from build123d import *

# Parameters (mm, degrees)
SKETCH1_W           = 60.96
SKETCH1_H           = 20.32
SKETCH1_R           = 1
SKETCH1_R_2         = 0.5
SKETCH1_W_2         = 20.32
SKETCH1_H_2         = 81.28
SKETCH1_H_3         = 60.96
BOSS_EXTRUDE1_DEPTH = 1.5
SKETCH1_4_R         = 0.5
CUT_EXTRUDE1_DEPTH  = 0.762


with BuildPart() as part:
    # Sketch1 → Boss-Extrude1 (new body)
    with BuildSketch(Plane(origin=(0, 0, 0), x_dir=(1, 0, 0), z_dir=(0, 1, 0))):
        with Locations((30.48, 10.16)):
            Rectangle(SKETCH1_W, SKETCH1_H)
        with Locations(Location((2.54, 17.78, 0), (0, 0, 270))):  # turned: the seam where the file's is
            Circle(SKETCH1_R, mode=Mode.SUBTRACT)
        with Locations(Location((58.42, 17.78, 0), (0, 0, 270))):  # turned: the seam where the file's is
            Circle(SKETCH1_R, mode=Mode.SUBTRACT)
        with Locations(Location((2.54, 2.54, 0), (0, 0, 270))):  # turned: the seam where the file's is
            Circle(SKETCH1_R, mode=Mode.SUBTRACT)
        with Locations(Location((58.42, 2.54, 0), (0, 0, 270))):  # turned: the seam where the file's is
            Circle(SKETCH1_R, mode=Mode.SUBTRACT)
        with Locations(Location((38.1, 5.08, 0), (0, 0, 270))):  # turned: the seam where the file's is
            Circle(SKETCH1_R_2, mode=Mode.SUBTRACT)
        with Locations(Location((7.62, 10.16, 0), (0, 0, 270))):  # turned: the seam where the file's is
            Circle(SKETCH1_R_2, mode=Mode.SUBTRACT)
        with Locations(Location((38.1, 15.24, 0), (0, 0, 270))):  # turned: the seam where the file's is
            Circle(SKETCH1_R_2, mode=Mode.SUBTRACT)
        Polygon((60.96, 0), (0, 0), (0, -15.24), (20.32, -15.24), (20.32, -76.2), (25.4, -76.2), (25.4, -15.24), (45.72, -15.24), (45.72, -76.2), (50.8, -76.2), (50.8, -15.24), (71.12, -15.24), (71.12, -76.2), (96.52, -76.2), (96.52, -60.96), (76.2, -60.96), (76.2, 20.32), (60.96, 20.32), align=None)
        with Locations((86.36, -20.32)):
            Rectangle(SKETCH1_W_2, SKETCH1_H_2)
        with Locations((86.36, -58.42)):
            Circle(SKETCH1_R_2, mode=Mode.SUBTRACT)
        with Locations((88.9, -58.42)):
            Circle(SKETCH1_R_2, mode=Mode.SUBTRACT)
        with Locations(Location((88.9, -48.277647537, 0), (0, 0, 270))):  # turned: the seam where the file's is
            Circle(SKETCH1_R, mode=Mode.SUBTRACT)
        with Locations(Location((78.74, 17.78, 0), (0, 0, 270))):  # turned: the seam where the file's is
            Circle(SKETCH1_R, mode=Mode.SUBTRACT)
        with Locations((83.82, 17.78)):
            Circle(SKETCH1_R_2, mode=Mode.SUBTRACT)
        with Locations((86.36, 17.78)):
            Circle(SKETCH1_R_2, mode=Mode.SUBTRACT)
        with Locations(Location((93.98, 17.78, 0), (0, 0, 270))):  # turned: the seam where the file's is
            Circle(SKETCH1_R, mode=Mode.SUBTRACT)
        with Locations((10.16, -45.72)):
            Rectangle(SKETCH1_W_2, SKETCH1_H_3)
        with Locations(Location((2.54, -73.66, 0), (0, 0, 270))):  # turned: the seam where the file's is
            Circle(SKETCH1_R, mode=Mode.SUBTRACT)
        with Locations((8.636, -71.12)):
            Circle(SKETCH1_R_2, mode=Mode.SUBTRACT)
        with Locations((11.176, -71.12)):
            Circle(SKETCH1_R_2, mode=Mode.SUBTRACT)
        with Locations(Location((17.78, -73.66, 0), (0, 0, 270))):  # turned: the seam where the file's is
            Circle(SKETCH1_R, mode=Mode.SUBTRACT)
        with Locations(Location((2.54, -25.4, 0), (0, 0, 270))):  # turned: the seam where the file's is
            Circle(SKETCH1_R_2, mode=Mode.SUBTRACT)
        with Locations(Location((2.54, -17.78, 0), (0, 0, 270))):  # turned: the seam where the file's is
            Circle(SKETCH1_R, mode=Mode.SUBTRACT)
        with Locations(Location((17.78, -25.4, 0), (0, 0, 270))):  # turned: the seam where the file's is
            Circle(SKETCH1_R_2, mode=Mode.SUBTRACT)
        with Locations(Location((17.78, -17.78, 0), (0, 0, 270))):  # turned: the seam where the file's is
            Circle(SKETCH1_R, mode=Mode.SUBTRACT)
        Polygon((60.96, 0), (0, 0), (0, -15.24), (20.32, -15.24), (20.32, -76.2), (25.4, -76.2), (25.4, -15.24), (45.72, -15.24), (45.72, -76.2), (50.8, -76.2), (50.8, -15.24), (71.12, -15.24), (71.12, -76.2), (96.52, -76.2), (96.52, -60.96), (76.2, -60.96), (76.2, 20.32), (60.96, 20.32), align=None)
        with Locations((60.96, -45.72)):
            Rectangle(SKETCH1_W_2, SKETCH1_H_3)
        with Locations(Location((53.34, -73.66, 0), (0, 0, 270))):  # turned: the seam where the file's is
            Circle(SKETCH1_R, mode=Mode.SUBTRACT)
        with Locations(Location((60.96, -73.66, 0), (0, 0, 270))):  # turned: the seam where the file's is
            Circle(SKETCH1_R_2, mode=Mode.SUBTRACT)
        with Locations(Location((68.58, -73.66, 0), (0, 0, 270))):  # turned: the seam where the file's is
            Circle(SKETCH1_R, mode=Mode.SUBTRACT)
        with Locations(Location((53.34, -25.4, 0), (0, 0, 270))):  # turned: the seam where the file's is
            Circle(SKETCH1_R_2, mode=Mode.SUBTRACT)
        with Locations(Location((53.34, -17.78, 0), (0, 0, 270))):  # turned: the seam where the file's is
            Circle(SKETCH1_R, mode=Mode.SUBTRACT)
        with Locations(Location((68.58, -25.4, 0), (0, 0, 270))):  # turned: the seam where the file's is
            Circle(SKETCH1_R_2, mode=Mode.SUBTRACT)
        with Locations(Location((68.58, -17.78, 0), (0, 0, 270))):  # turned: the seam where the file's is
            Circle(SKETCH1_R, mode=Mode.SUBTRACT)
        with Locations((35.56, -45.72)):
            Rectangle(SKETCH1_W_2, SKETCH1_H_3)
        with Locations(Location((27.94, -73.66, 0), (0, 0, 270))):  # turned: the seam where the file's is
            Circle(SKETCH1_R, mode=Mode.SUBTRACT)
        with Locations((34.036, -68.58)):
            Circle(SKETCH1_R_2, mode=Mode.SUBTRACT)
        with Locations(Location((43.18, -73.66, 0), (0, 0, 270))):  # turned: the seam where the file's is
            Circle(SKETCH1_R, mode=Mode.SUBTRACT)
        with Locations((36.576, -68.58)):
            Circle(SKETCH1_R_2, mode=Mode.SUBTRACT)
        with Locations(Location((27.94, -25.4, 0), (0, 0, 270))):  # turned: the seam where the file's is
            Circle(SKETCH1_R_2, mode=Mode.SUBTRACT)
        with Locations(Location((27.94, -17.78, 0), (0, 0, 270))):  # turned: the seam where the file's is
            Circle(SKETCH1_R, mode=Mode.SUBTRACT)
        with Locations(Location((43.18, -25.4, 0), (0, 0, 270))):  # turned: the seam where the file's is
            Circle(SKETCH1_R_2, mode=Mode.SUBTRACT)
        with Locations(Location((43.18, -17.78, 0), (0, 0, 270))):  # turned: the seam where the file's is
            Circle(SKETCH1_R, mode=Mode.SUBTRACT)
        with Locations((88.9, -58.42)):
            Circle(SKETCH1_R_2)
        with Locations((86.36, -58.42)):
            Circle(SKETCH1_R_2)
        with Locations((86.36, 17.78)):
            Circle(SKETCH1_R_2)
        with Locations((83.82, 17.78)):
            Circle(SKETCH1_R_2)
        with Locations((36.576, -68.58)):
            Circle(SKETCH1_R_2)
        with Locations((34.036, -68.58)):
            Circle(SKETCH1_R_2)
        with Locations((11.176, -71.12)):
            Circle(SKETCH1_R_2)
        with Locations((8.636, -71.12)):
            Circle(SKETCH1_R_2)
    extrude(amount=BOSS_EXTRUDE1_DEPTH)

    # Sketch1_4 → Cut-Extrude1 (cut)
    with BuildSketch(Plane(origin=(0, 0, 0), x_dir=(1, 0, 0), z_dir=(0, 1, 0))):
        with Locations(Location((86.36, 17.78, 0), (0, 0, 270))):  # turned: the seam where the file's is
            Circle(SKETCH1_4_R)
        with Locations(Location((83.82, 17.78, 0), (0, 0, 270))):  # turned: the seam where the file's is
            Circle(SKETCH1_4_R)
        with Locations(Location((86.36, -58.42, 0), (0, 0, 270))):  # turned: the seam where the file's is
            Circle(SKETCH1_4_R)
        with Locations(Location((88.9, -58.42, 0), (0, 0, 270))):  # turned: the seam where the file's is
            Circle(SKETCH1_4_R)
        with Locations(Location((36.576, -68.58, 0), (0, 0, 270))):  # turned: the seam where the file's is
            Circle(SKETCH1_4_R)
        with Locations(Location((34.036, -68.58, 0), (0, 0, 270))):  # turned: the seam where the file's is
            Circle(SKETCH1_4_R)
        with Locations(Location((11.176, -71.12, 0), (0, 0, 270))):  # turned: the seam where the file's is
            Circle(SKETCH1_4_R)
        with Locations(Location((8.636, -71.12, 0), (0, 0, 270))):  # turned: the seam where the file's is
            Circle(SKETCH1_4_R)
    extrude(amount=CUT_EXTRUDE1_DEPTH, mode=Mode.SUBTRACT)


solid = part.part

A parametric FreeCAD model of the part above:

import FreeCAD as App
import Part
import Sketcher
from FreeCAD import Vector
Q = App.Units.Quantity

doc = App.newDocument("Part")
params = doc.addObject("Spreadsheet::Sheet", "Params")
for row, (alias, value) in enumerate([
    ("sketch1_diameter", "2 mm"),
    ("sketch1_diameter2", "1 mm"),
    ("sketch1_width", "96.52 mm"),
    ("pad1_length", "1.5 mm"),
    ("sketch2_diameter", "1 mm"),
    ("pocket1_length", "0.762 mm"),
], start=1):
    params.set(f"A{row}", alias)
    params.set(f"B{row}", "=" + value)
    params.setAlias(f"B{row}", alias)

body = doc.addObject("PartDesign::Body", "Body")

sketch1 = doc.addObject("Sketcher::SketchObject", "Sketch")
body.addObject(sketch1)
sketch1.AttachmentSupport = (doc.XZ_Plane, [""])
sketch1.MapMode = "FlatFace"
sketch1.addGeometry([
    Part.LineSegment(Vector(0, -20.3, 0), Vector(0, 76.2, 0)),
    Part.LineSegment(Vector(0, 76.2, 0), Vector(96.5, 76.2, 0)),
    Part.LineSegment(Vector(96.5, 76.2, 0), Vector(96.5, -20.3, 0)),
    Part.LineSegment(Vector(96.5, -20.3, 0), Vector(0, -20.3, 0)),
    Part.Circle(Vector(2.5, 73.7, 0), Vector(0, 0, 1), 1),
    Part.Circle(Vector(17.8, 73.7, 0), Vector(0, 0, 1), 1),
    Part.Circle(Vector(27.9, 73.7, 0), Vector(0, 0, 1), 1),
    Part.Circle(Vector(43.2, 73.7, 0), Vector(0, 0, 1), 1),
    Part.Circle(Vector(53.3, 73.7, 0), Vector(0, 0, 1), 1),
    Part.Circle(Vector(61, 73.7, 0), Vector(0, 0, 1), 0.5),
    Part.Circle(Vector(68.6, 73.7, 0), Vector(0, 0, 1), 1),
    Part.Circle(Vector(88.9, 48.3, 0), Vector(0, 0, 1), 1),
    Part.Circle(Vector(2.5, 25.4, 0), Vector(0, 0, 1), 0.5),
    Part.Circle(Vector(2.5, 17.8, 0), Vector(0, 0, 1), 1),
    Part.Circle(Vector(17.8, 25.4, 0), Vector(0, 0, 1), 0.5),
    Part.Circle(Vector(17.8, 17.8, 0), Vector(0, 0, 1), 1),
    Part.Circle(Vector(27.9, 25.4, 0), Vector(0, 0, 1), 0.5),
    Part.Circle(Vector(27.9, 17.8, 0), Vector(0, 0, 1), 1),
    Part.Circle(Vector(43.2, 25.4, 0), Vector(0, 0, 1), 0.5),
    Part.Circle(Vector(43.2, 17.8, 0), Vector(0, 0, 1), 1),
    Part.Circle(Vector(2.5, -2.5, 0), Vector(0, 0, 1), 1),
    Part.Circle(Vector(7.6, -10.2, 0), Vector(0, 0, 1), 0.5),
    Part.Circle(Vector(2.5, -17.8, 0), Vector(0, 0, 1), 1),
    Part.Circle(Vector(38.1, -5.1, 0), Vector(0, 0, 1), 0.5),
    Part.Circle(Vector(38.1, -15.2, 0), Vector(0, 0, 1), 0.5),
    Part.Circle(Vector(53.3, 25.4, 0), Vector(0, 0, 1), 0.5),
    Part.Circle(Vector(53.3, 17.8, 0), Vector(0, 0, 1), 1),
    Part.Circle(Vector(68.6, 25.4, 0), Vector(0, 0, 1), 0.5),
    Part.Circle(Vector(68.6, 17.8, 0), Vector(0, 0, 1), 1),
    Part.Circle(Vector(58.4, -2.5, 0), Vector(0, 0, 1), 1),
    Part.Circle(Vector(58.4, -17.8, 0), Vector(0, 0, 1), 1),
    Part.Circle(Vector(78.7, -17.8, 0), Vector(0, 0, 1), 1),
    Part.Circle(Vector(94, -17.8, 0), Vector(0, 0, 1), 1),
], False)
sketch1.addConstraint([
    Sketcher.Constraint("Coincident", 0, 2, 1, 1),
    Sketcher.Constraint("Coincident", 1, 2, 2, 1),
    Sketcher.Constraint("Coincident", 2, 2, 3, 1),
    Sketcher.Constraint("Coincident", 3, 2, 0, 1),
    Sketcher.Constraint("Vertical", 0),
    Sketcher.Constraint("Horizontal", 1),
    Sketcher.Constraint("Vertical", 2),
    Sketcher.Constraint("Horizontal", 3),
    Sketcher.Constraint("Equal", 4, 5),
    Sketcher.Constraint("Equal", 5, 6),
    Sketcher.Constraint("Equal", 6, 7),
    Sketcher.Constraint("Equal", 7, 8),
    Sketcher.Constraint("Equal", 8, 10),
    Sketcher.Constraint("Equal", 10, 11),
    Sketcher.Constraint("Equal", 9, 12),
    Sketcher.Constraint("Equal", 11, 13),
    Sketcher.Constraint("Equal", 12, 14),
    Sketcher.Constraint("Equal", 13, 15),
    Sketcher.Constraint("Equal", 14, 16),
    Sketcher.Constraint("Equal", 15, 17),
    Sketcher.Constraint("Equal", 16, 18),
    Sketcher.Constraint("Equal", 17, 19),
    Sketcher.Constraint("Equal", 19, 20),
    Sketcher.Constraint("Equal", 18, 21),
    Sketcher.Constraint("Equal", 20, 22),
    Sketcher.Constraint("Equal", 21, 23),
    Sketcher.Constraint("Equal", 23, 24),
    Sketcher.Constraint("Equal", 24, 25),
    Sketcher.Constraint("Equal", 22, 26),
    Sketcher.Constraint("Equal", 25, 27),
    Sketcher.Constraint("Equal", 26, 28),
    Sketcher.Constraint("Equal", 28, 29),
    Sketcher.Constraint("Equal", 29, 30),
    Sketcher.Constraint("Equal", 30, 31),
    Sketcher.Constraint("Equal", 31, 32),
    Sketcher.Constraint("Symmetric", 13, 3, 22, 3, -1),
    Sketcher.Constraint("PointOnObject", 0, 2, -2),
    Sketcher.Constraint("Horizontal", 4, 3, 5, 3),
    Sketcher.Constraint("Horizontal", 5, 3, 6, 3),
    Sketcher.Constraint("Horizontal", 6, 3, 7, 3),
    Sketcher.Constraint("Horizontal", 7, 3, 8, 3),
    Sketcher.Constraint("Horizontal", 8, 3, 9, 3),
    Sketcher.Constraint("Horizontal", 9, 3, 10, 3),
    Sketcher.Constraint("Horizontal", 12, 3, 14, 3),
    Sketcher.Constraint("Horizontal", 13, 3, 15, 3),
    Sketcher.Constraint("Horizontal", 14, 3, 16, 3),
    Sketcher.Constraint("Horizontal", 15, 3, 17, 3),
    Sketcher.Constraint("Horizontal", 16, 3, 18, 3),
    Sketcher.Constraint("Horizontal", 17, 3, 19, 3),
    Sketcher.Constraint("Horizontal", 18, 3, 25, 3),
    Sketcher.Constraint("Horizontal", 19, 3, 26, 3),
    Sketcher.Constraint("Horizontal", 25, 3, 27, 3),
    Sketcher.Constraint("Horizontal", 26, 3, 28, 3),
    Sketcher.Constraint("Horizontal", 20, 3, 29, 3),
    Sketcher.Constraint("Horizontal", 22, 3, 30, 3),
    Sketcher.Constraint("Horizontal", 30, 3, 31, 3),
    Sketcher.Constraint("Horizontal", 31, 3, 32, 3),
    Sketcher.Constraint("Vertical", 4, 3, 12, 3),
    Sketcher.Constraint("Vertical", 12, 3, 13, 3),
    Sketcher.Constraint("Vertical", 5, 3, 14, 3),
    Sketcher.Constraint("Vertical", 14, 3, 15, 3),
    Sketcher.Constraint("Vertical", 6, 3, 16, 3),
    Sketcher.Constraint("Vertical", 16, 3, 17, 3),
    Sketcher.Constraint("Vertical", 7, 3, 18, 3),
    Sketcher.Constraint("Vertical", 18, 3, 19, 3),
    Sketcher.Constraint("Vertical", 13, 3, 20, 3),
    Sketcher.Constraint("Vertical", 23, 3, 24, 3),
    Sketcher.Constraint("Vertical", 8, 3, 25, 3),
    Sketcher.Constraint("Vertical", 25, 3, 26, 3),
    Sketcher.Constraint("Vertical", 10, 3, 27, 3),
    Sketcher.Constraint("Vertical", 27, 3, 28, 3),
    Sketcher.Constraint("Vertical", 29, 3, 30, 3),
    Sketcher.Constraint("Equal", 3, 0),
    Sketcher.Constraint("Diameter", 4, Q("2 mm")),
    Sketcher.Constraint("Diameter", 9, Q("1 mm")),
    Sketcher.Constraint("DistanceX", 1, 1, 1, 2, Q("96.52 mm")),
    Sketcher.Constraint("DistanceX", -1, 1, 11, 3, Q("88.9 mm")),
    Sketcher.Constraint("DistanceY", -1, 1, 12, 3, Q("25.4 mm")),
    Sketcher.Constraint("DistanceX", -1, 1, 23, 3, Q("38.1 mm")),
    Sketcher.Constraint("DistanceY", -1, 1, 0, 2, Q("76.2 mm")),
    Sketcher.Constraint("DistanceX", 4, 3, 6, 3, Q("25.4 mm")),
    Sketcher.Constraint("DistanceX", 5, 3, 7, 3, Q("25.4 mm")),
    Sketcher.Constraint("DistanceX", 6, 3, 8, 3, Q("25.4 mm")),
    Sketcher.Constraint("DistanceX", 7, 3, 10, 3, Q("25.4 mm")),
    Sketcher.Constraint("DistanceY", 24, 3, 29, 3, Q("12.7 mm")),
    Sketcher.Constraint("DistanceY", 30, 3, 23, 3, Q("12.7 mm")),
    Sketcher.Constraint("DistanceX", 28, 3, 32, 3, Q("25.4 mm")),
    Sketcher.Constraint("DistanceX", 30, 3, 2, 2, Q("38.1 mm")),
    Sketcher.Constraint("DistanceY", 2, 2, 28, 3, Q("38.1 mm")),
    Sketcher.Constraint("DistanceX", -1, 1, 4, 3, Q("2.54 mm")),
    Sketcher.Constraint("DistanceY", -1, 1, 4, 3, Q("73.66 mm")),
    Sketcher.Constraint("DistanceX", -1, 1, 5, 3, Q("17.78 mm")),
    Sketcher.Constraint("DistanceX", -1, 1, 9, 3, Q("60.96 mm")),
    Sketcher.Constraint("DistanceY", 20, 3, -1, 1, Q("2.54 mm")),
    Sketcher.Constraint("DistanceX", -1, 1, 21, 3, Q("7.62 mm")),
    Sketcher.Constraint("DistanceY", 21, 3, -1, 1, Q("10.16 mm")),
    Sketcher.Constraint("DistanceX", -1, 1, 31, 3, Q("78.74 mm")),
    Sketcher.Constraint("DistanceY", -1, 1, 11, 3, Q("48.277648 mm")),
])
sketch1.setExpression("Constraints[73]", "Params.sketch1_diameter")
sketch1.setExpression("Constraints[74]", "Params.sketch1_diameter2")
sketch1.setExpression("Constraints[75]", "Params.sketch1_width")
pad1 = doc.addObject("PartDesign::Pad", "Pad")
body.addObject(pad1)
pad1.Profile = sketch1
pad1.setExpression("Length", "Params.pad1_length")
pad1.Reversed = True

sketch2 = doc.addObject("Sketcher::SketchObject", "Sketch001")
body.addObject(sketch2)
sketch2.AttachmentSupport = (doc.XZ_Plane, [""])
sketch2.MapMode = "FlatFace"
sketch2.addGeometry([
    Part.Circle(Vector(86.4, -17.8, 0), Vector(0, 0, 1), 0.5),
    Part.Circle(Vector(83.8, -17.8, 0), Vector(0, 0, 1), 0.5),
    Part.Circle(Vector(86.4, 58.4, 0), Vector(0, 0, 1), 0.5),
    Part.Circle(Vector(88.9, 58.4, 0), Vector(0, 0, 1), 0.5),
    Part.Circle(Vector(36.6, 68.6, 0), Vector(0, 0, 1), 0.5),
    Part.Circle(Vector(34, 68.6, 0), Vector(0, 0, 1), 0.5),
    Part.Circle(Vector(11.2, 71.1, 0), Vector(0, 0, 1), 0.5),
    Part.Circle(Vector(8.6, 71.1, 0), Vector(0, 0, 1), 0.5),
], False)
sketch2.addConstraint([
    Sketcher.Constraint("Equal", 0, 1),
    Sketcher.Constraint("Equal", 1, 2),
    Sketcher.Constraint("Equal", 2, 3),
    Sketcher.Constraint("Equal", 3, 4),
    Sketcher.Constraint("Equal", 4, 5),
    Sketcher.Constraint("Equal", 5, 6),
    Sketcher.Constraint("Equal", 6, 7),
    Sketcher.Constraint("Horizontal", 0, 3, 1, 3),
    Sketcher.Constraint("Horizontal", 2, 3, 3, 3),
    Sketcher.Constraint("Horizontal", 4, 3, 5, 3),
    Sketcher.Constraint("Horizontal", 6, 3, 7, 3),
    Sketcher.Constraint("Vertical", 0, 3, 2, 3),
    Sketcher.Constraint("Diameter", 0, Q("1 mm")),
    Sketcher.Constraint("DistanceX", -1, 1, 3, 3, Q("88.9 mm")),
    Sketcher.Constraint("DistanceY", 0, 3, 2, 3, Q("76.2 mm")),
    Sketcher.Constraint("DistanceX", 6, 3, 4, 3, Q("25.4 mm")),
    Sketcher.Constraint("DistanceY", 2, 3, 6, 3, Q("12.7 mm")),
    Sketcher.Constraint("DistanceX", 7, 3, 5, 3, Q("25.4 mm")),
    Sketcher.Constraint("DistanceX", -1, 1, 0, 3, Q("86.36 mm")),
    Sketcher.Constraint("DistanceY", 0, 3, -1, 1, Q("17.78 mm")),
    Sketcher.Constraint("DistanceX", -1, 1, 1, 3, Q("83.82 mm")),
    Sketcher.Constraint("DistanceY", -1, 1, 4, 3, Q("68.58 mm")),
    Sketcher.Constraint("DistanceX", 5, 3, 4, 3, Q("2.54 mm")),
    Sketcher.Constraint("DistanceX", -1, 1, 4, 3, Q("36.576 mm")),
])
sketch2.setExpression("Constraints[12]", "Params.sketch2_diameter")
pocket1 = doc.addObject("PartDesign::Pocket", "Pocket")
body.addObject(pocket1)
pocket1.Profile = sketch2
pocket1.setExpression("Length", "Params.pocket1_length")

doc.recompute()
